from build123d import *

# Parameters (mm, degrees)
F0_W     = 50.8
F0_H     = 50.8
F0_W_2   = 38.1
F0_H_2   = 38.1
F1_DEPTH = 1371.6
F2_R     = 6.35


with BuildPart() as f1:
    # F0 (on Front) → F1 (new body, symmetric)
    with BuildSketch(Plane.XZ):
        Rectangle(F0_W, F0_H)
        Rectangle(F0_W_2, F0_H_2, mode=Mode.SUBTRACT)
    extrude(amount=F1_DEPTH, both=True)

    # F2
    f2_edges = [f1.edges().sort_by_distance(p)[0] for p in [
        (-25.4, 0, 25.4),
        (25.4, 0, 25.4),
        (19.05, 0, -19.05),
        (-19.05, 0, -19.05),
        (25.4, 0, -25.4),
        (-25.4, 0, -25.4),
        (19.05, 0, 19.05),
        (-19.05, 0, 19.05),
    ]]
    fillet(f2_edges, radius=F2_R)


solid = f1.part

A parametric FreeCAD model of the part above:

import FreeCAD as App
import Part
import Sketcher

V = App.Vector
Q = App.Units.Quantity


def edges_at(feature, points):
    """Names of the edges that pass closest to the given points."""
    edges = feature.Shape.Edges
    near = lambda p: min(range(len(edges)), key=lambda i: edges[i].distToShape(Part.Vertex(*p))[0])
    return sorted({f"Edge{near(p) + 1}" for p in points})

doc = App.newDocument("Part")
body = doc.addObject("PartDesign::Body", "Body")

sketch1 = doc.addObject("Sketcher::SketchObject", "Sketch")
body.addObject(sketch1)
sketch1.AttachmentSupport = (doc.XZ_Plane, [""])
sketch1.MapMode = "FlatFace"
sketch1.addGeometry([
    Part.LineSegment(V(-25.4, 25.4, 0), V(-25.4, -25.4, 0)),
    Part.LineSegment(V(-25.4, -25.4, 0), V(25.4, -25.4, 0)),
    Part.LineSegment(V(25.4, -25.4, 0), V(25.4, 25.4, 0)),
    Part.LineSegment(V(25.4, 25.4, 0), V(-25.4, 25.4, 0)),
    Part.LineSegment(V(19.05, -19.05, 0), V(-19.05, -19.05, 0)),
    Part.LineSegment(V(-19.05, -19.05, 0), V(-19.05, 19.05, 0)),
    Part.LineSegment(V(-19.05, 19.05, 0), V(19.05, 19.05, 0)),
    Part.LineSegment(V(19.05, 19.05, 0), V(19.05, -19.05, 0)),
], False)
sketch1.addConstraint([
    Sketcher.Constraint("Coincident", 0, 2, 1, 1),
    Sketcher.Constraint("Coincident", 1, 2, 2, 1),
    Sketcher.Constraint("Coincident", 2, 2, 3, 1),
    Sketcher.Constraint("Coincident", 3, 2, 0, 1),
    Sketcher.Constraint("Coincident", 4, 2, 5, 1),
    Sketcher.Constraint("Coincident", 5, 2, 6, 1),
    Sketcher.Constraint("Coincident", 6, 2, 7, 1),
    Sketcher.Constraint("Coincident", 7, 2, 4, 1),
    Sketcher.Constraint("Vertical", 0),
    Sketcher.Constraint("Horizontal", 1),
    Sketcher.Constraint("Vertical", 2),
    Sketcher.Constraint("Horizontal", 3),
    Sketcher.Constraint("Horizontal", 4),
    Sketcher.Constraint("Vertical", 5),
    Sketcher.Constraint("Horizontal", 6),
    Sketcher.Constraint("Vertical", 7),
    Sketcher.Constraint("Symmetric", 0, 2, 2, 2, -1, 1),
    Sketcher.Constraint("Symmetric", 4, 2, 6, 2, -1, 1),
    Sketcher.Constraint("Equal", 3, 0),
    Sketcher.Constraint("Equal", 6, 5),
    Sketcher.Constraint("DistanceX", 1, 1, 1, 2, Q("2 in")),
    Sketcher.Constraint("DistanceX", 4, 2, 4, 1, Q("1.5 in")),
])
pad1 = doc.addObject("PartDesign::Pad", "Pad")
body.addObject(pad1)
pad1.Profile = sketch1
pad1.Length = Q("108 in")
pad1.Midplane = True
doc.recompute()

fillet = doc.addObject("PartDesign::Fillet", "Fillet")
body.addObject(fillet)
fillet.Base = (pad1, edges_at(pad1, [
    (-25.4, 0, 25.4),
    (25.4, 0, 25.4),
    (19.05, 0, -19.05),
    (-19.05, 0, -19.05),
    (25.4, 0, -25.4),
    (-25.4, 0, -25.4),
    (19.05, 0, 19.05),
    (-19.05, 0, 19.05),
]))
fillet.Radius = Q("0.25 in")

doc.recompute()
